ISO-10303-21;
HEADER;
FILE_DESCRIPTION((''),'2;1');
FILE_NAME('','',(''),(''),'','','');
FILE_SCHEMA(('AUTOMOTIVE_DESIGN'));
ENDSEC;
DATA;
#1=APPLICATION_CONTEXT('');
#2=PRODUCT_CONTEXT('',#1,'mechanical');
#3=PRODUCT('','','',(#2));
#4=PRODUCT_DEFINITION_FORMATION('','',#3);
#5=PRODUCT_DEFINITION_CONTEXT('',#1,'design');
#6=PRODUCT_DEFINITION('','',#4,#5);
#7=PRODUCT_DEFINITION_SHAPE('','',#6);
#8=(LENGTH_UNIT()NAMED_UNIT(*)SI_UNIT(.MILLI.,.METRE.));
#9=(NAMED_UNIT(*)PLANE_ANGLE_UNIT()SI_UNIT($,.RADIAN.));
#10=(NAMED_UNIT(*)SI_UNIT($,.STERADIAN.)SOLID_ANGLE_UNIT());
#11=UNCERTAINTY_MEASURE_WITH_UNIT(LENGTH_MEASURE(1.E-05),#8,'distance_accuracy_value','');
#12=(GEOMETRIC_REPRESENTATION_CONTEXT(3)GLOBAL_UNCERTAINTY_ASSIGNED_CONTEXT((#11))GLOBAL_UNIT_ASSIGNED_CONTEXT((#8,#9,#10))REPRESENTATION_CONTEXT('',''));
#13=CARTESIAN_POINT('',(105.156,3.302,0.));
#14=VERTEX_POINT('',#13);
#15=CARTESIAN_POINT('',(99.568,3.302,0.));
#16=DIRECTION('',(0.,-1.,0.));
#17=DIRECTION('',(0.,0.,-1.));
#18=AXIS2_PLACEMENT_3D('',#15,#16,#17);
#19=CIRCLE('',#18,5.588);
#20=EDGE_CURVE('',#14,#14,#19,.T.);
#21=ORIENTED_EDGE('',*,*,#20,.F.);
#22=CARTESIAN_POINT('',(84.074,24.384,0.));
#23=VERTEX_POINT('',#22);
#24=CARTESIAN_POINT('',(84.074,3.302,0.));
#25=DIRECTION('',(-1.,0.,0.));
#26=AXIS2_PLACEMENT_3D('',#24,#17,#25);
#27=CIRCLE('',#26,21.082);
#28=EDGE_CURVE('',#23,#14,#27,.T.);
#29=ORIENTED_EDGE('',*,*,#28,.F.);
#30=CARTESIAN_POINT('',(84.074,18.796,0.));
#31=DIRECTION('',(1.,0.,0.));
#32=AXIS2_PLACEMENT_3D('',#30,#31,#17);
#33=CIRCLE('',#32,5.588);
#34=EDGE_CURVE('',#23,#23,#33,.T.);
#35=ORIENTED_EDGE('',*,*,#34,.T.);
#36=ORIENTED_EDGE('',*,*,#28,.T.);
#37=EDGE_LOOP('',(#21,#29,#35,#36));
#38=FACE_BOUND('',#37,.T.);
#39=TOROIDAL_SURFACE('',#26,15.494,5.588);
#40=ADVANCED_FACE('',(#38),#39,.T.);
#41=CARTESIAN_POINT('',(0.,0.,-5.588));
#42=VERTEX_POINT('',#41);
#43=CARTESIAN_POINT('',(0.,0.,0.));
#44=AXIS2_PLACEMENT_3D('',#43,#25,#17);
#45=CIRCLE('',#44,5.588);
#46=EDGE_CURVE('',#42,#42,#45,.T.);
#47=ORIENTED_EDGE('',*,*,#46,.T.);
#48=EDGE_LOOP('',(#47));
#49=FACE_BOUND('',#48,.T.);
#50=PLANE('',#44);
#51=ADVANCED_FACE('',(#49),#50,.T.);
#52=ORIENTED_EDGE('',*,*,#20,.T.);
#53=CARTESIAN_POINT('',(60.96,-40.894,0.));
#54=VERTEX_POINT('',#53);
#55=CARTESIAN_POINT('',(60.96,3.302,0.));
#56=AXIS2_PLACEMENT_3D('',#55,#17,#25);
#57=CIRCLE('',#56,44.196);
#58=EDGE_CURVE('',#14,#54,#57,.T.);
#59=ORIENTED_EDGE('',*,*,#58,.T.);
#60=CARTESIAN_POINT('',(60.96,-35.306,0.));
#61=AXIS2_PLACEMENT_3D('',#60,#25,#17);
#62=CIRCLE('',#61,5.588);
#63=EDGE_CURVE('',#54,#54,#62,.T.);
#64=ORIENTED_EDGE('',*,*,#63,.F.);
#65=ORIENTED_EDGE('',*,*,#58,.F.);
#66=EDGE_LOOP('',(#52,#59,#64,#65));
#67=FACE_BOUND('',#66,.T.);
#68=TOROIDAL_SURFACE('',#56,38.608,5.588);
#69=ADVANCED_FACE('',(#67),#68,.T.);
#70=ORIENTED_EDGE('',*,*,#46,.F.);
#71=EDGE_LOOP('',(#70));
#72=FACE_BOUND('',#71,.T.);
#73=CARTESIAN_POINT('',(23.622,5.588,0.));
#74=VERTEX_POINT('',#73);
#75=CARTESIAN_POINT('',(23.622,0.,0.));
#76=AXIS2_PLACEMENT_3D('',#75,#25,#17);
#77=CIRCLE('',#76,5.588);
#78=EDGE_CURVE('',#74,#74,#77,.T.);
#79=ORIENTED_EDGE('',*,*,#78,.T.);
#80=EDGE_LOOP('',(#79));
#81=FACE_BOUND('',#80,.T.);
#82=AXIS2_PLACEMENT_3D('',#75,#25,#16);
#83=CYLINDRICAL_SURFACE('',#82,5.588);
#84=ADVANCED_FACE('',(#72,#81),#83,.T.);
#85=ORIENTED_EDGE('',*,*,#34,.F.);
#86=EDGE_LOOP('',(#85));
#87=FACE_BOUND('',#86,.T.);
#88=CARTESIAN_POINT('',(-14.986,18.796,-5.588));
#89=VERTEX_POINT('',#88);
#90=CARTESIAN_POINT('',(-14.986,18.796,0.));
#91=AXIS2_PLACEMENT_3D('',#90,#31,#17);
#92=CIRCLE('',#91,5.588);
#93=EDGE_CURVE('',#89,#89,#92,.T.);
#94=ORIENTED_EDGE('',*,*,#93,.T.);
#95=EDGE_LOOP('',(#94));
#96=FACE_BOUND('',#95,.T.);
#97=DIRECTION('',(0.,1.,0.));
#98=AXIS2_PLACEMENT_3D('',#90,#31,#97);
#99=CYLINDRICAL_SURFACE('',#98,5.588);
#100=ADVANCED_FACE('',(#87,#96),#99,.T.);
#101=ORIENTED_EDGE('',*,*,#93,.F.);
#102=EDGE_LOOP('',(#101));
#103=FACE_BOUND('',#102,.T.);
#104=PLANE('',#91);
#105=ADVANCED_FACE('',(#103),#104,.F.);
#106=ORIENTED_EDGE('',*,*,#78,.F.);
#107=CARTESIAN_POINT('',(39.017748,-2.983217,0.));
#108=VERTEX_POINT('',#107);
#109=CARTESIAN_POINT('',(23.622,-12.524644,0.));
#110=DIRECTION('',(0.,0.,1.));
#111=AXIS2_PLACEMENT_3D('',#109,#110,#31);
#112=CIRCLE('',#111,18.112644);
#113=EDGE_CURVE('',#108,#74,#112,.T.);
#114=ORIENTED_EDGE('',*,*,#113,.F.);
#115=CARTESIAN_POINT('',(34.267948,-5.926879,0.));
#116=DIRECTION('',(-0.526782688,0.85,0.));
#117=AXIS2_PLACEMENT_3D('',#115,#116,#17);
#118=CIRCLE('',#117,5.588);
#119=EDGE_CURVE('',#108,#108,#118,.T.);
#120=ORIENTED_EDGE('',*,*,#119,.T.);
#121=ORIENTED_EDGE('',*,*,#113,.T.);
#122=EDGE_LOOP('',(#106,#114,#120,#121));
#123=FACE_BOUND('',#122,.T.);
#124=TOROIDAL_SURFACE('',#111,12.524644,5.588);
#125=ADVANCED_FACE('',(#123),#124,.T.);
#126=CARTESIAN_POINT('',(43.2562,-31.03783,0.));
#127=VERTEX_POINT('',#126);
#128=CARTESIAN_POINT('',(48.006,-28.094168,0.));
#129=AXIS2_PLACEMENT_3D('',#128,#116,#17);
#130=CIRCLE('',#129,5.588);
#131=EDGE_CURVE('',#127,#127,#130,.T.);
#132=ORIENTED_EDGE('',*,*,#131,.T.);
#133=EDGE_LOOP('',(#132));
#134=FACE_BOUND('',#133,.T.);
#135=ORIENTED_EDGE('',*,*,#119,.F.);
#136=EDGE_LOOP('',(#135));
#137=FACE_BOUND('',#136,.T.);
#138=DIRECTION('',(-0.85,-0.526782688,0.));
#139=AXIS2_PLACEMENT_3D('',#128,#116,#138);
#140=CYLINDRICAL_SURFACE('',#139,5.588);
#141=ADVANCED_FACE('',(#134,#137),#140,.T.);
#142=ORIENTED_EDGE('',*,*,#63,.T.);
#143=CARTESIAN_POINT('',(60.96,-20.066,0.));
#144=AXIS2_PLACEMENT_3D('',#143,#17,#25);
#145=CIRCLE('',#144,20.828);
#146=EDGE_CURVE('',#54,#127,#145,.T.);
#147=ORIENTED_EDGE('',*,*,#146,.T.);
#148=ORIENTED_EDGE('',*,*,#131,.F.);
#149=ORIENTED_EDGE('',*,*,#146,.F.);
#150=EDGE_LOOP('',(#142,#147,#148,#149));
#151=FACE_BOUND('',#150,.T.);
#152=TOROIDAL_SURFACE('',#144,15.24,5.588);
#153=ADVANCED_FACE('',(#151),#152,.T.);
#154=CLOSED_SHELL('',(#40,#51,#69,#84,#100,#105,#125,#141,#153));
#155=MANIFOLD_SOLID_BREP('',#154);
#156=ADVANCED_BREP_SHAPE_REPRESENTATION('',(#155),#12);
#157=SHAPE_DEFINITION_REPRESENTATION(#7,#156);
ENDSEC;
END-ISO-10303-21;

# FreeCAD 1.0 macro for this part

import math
import FreeCAD as App
import Part
import Sketcher
from FreeCAD import Vector
Q = App.Units.Quantity

doc = App.newDocument("Part")
body = doc.addObject("PartDesign::Body", "Body")

sketch1 = body.newObject("Sketcher::SketchObject", "Sketch")
sketch1.AttachmentSupport = (doc.getObject("YZ_Plane"), [""])
sketch1.MapMode = "FlatFace"
sketch1.AttachmentOffset = App.Placement(Vector(0, 0, -0.59 * 25.4), App.Rotation())
sketch1.addGeometry(Part.Circle(Vector(19, 0, 0), Vector(0, 0, 1), 6), False)
sketch1.addConstraint(Sketcher.Constraint("PointOnObject", 0, 3, -1))
sketch1.addConstraint(Sketcher.Constraint("Diameter", 0, Q("0.44 in")))
sketch1.addConstraint(Sketcher.Constraint("DistanceX", -1, 1, 0, 3, Q("0.74 in")))

sketch2 = body.newObject("Sketcher::SketchObject", "Sketch001")
sketch2.AttachmentSupport = (doc.getObject("XY_Plane"), [""])
sketch2.MapMode = "FlatFace"
sketch2.addGeometry(Part.LineSegment(Vector(-15, 19, 0), Vector(84, 19, 0)), False)
sketch2.addGeometry(Part.ArcOfCircle(Part.Circle(Vector(84, 3, 0), Vector(0, 0, 1), 15), math.radians(0), math.radians(90)), False)
sketch2.addGeometry(Part.ArcOfCircle(Part.Circle(Vector(61, 3, 0), Vector(0, 0, 1), 39), math.radians(-90), math.radians(0)), False)
sketch2.addGeometry(Part.ArcOfCircle(Part.Circle(Vector(61, -20, 0), Vector(0, 0, 1), 15), math.radians(-148), math.radians(-90)), False)
sketch2.addGeometry(Part.LineSegment(Vector(48, -28, 0), Vector(34, -6, 0)), False)
sketch2.addGeometry(Part.ArcOfCircle(Part.Circle(Vector(24, -13, 0), Vector(0, 0, 1), 13), math.radians(32), math.radians(90)), False)
sketch2.addGeometry(Part.LineSegment(Vector(24, 0, 0), Vector(0, 0, 0)), False)
sketch2.addConstraint(Sketcher.Constraint("Tangent", 0, 2, 1, 2))
sketch2.addConstraint(Sketcher.Constraint("Tangent", 1, 1, 2, 2))
sketch2.addConstraint(Sketcher.Constraint("Tangent", 2, 1, 3, 2))
sketch2.addConstraint(Sketcher.Constraint("Tangent", 3, 1, 4, 1))
sketch2.addConstraint(Sketcher.Constraint("Tangent", 4, 2, 5, 1))
sketch2.addConstraint(Sketcher.Constraint("Tangent", 5, 2, 6, 1))
sketch2.addConstraint(Sketcher.Constraint("Horizontal", 0))
sketch2.addConstraint(Sketcher.Constraint("Horizontal", 6))
sketch2.addConstraint(Sketcher.Constraint("Coincident", 6, 2, -1, 1))
sketch2.addConstraint(Sketcher.Constraint("Horizontal", 1, 3, 2, 3))
sketch2.addConstraint(Sketcher.Constraint("Vertical", 2, 3, 3, 3))
sketch2.addConstraint(Sketcher.Constraint("Radius", 3, Q("0.6 in")))
sketch2.addConstraint(Sketcher.Constraint("Radius", 1, Q("0.61 in")))
sketch2.addConstraint(Sketcher.Constraint("Radius", 2, Q("1.52 in")))
sketch2.addConstraint(Sketcher.Constraint("DistanceX", 0, 1, 0, 2, Q("3.9 in")))
sketch2.addConstraint(Sketcher.Constraint("DistanceX", 6, 2, 6, 1, Q("0.93 in")))
sketch2.addConstraint(Sketcher.Constraint("DistanceX", -1, 1, 2, 3, Q("2.4 in")))
sketch2.addConstraint(Sketcher.Constraint("DistanceY", -1, 1, 1, 3, Q("0.13 in")))
sketch2.addConstraint(Sketcher.Constraint("DistanceX", -1, 1, 3, 1, Q("1.89 in")))
doc.recompute()

additivepipe = body.newObject("PartDesign::AdditivePipe", "AdditivePipe")
additivepipe.Profile = sketch1
additivepipe.Spine = (sketch2, ["Edge1", "Edge2", "Edge3", "Edge4", "Edge5", "Edge6", "Edge7"])

doc.recompute()
